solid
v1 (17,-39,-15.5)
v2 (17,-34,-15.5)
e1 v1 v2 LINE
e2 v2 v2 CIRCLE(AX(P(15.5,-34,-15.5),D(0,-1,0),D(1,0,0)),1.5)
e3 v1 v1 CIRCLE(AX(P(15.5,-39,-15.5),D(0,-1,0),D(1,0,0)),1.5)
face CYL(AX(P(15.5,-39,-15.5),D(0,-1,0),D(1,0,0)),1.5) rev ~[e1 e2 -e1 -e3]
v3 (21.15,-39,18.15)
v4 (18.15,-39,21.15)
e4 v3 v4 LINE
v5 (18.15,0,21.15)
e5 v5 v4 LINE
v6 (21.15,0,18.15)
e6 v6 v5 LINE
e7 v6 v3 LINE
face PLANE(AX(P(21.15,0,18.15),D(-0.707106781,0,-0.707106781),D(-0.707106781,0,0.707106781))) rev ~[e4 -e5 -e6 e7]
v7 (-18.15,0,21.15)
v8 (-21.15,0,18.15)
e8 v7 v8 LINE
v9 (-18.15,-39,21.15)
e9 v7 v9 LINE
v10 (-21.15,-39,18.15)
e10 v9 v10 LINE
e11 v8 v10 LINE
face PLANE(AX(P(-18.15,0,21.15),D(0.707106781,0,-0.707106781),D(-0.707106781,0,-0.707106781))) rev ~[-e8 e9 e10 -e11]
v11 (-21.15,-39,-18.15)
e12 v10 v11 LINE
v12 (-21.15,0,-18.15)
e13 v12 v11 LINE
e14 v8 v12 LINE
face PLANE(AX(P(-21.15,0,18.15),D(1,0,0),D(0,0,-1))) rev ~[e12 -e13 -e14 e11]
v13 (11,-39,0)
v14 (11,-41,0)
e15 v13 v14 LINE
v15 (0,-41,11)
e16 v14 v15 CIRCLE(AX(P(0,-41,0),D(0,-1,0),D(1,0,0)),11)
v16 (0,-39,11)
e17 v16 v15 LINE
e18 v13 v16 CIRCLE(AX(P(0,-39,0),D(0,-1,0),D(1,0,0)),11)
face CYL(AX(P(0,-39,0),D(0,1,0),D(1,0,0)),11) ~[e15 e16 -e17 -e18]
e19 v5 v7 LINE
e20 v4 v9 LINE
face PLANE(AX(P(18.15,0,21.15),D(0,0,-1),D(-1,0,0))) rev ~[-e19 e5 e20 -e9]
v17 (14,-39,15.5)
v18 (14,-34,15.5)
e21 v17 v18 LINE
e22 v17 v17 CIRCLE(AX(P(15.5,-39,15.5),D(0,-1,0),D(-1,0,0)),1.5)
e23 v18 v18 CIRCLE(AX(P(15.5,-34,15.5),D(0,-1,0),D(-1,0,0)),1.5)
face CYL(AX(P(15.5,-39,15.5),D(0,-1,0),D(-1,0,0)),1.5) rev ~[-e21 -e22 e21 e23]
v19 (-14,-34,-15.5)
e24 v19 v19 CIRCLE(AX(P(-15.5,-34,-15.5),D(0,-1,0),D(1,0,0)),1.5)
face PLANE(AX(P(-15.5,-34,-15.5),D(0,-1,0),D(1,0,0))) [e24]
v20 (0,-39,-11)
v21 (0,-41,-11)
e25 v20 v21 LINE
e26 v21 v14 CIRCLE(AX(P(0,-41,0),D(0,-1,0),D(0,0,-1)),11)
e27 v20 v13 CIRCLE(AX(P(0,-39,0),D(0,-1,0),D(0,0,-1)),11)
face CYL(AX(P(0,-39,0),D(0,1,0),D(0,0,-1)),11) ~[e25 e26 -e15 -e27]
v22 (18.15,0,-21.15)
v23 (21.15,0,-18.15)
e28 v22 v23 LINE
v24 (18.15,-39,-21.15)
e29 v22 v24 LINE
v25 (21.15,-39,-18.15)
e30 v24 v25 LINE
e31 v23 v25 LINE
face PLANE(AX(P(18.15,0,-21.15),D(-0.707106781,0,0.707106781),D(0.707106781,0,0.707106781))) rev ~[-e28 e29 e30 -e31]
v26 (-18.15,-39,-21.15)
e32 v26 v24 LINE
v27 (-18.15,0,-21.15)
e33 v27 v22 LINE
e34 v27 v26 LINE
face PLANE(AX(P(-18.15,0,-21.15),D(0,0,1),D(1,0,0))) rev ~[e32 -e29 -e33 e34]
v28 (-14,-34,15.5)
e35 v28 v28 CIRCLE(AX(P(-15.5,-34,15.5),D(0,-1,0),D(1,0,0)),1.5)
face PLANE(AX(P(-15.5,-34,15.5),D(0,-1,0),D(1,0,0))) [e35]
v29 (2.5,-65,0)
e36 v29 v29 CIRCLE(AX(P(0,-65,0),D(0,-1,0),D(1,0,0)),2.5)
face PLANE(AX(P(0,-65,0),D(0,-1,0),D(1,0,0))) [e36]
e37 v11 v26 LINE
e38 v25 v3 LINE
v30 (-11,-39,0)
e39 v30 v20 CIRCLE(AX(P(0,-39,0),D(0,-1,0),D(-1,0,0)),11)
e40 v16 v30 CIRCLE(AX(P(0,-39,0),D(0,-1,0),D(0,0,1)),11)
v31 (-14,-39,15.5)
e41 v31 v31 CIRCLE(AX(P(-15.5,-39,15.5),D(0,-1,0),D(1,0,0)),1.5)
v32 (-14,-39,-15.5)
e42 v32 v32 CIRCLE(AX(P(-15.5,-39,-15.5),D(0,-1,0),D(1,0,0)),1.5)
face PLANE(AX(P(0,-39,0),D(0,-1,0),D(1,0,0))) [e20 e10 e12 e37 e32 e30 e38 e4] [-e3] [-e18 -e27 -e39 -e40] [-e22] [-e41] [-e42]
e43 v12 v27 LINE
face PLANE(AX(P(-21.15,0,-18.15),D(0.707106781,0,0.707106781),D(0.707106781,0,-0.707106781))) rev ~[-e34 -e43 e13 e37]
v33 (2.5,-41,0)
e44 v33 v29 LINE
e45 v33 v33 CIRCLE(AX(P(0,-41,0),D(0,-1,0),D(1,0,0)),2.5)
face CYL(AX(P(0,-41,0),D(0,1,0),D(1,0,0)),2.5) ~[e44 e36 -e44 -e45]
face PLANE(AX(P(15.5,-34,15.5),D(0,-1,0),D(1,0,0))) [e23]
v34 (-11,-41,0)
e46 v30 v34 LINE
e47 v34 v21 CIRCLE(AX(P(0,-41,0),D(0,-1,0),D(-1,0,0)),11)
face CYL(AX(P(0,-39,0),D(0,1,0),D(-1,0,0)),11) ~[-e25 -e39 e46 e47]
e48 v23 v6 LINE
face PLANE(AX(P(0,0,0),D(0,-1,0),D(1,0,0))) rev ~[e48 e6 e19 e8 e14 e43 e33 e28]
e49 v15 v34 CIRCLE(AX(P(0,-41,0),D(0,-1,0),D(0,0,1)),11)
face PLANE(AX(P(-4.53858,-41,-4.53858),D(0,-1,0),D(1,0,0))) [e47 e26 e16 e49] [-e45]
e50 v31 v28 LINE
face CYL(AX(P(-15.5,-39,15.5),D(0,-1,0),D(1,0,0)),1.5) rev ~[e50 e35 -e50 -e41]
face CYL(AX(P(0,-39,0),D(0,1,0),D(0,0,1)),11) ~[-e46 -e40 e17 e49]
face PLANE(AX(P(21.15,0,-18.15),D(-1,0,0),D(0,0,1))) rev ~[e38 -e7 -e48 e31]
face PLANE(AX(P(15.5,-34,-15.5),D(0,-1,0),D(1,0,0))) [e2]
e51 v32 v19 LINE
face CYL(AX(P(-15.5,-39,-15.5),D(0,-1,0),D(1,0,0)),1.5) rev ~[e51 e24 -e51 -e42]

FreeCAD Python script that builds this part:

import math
import FreeCAD as App
import Part
import Sketcher

V = App.Vector

doc = App.newDocument("Part")
body = doc.addObject("PartDesign::Body", "Body")

# Sketch on XZ plane
sketch1 = body.newObject("Sketcher::SketchObject", "Sketch")
sketch1.AttachmentSupport = (doc.getObject("XZ_Plane"), [""])
sketch1.MapMode = "FlatFace"
sketch1.addGeometry([
    Part.LineSegment(V(21.1, 18.1, 0), V(18.1, 21.1, 0)),  # 0
    Part.LineSegment(V(18.1, 21.1, 0), V(-18.1, 21.1, 0)),  # 1
    Part.LineSegment(V(-18.1, 21.1, 0), V(-21.1, 18.1, 0)),  # 2
    Part.LineSegment(V(-21.1, 18.1, 0), V(-21.1, -18.1, 0)),  # 3
    Part.LineSegment(V(-21.1, -18.1, 0), V(-18.1, -21.1, 0)),  # 4
    Part.LineSegment(V(-18.1, -21.1, 0), V(18.1, -21.1, 0)),  # 5
    Part.LineSegment(V(18.1, -21.1, 0), V(21.1, -18.1, 0)),  # 6
    Part.LineSegment(V(21.1, -18.1, 0), V(21.1, 18.1, 0)),  # 7
], False)
sketch1.addConstraint([
    Sketcher.Constraint("Coincident", 0, 2, 1, 1),
    Sketcher.Constraint("Coincident", 1, 2, 2, 1),
    Sketcher.Constraint("Coincident", 2, 2, 3, 1),
    Sketcher.Constraint("Coincident", 3, 2, 4, 1),
    Sketcher.Constraint("Coincident", 4, 2, 5, 1),
    Sketcher.Constraint("Coincident", 5, 2, 6, 1),
    Sketcher.Constraint("Coincident", 6, 2, 7, 1),
    Sketcher.Constraint("Coincident", 7, 2, 0, 1),
    Sketcher.Constraint("Horizontal", 1),
    Sketcher.Constraint("Vertical", 3),
    Sketcher.Constraint("Horizontal", 5),
    Sketcher.Constraint("Vertical", 7),
    Sketcher.Constraint("Symmetric", 0, 2, 4, 2, -1, 1),
    Sketcher.Constraint("Symmetric", 2, 2, 6, 2, -1, 1),
    Sketcher.Constraint("Perpendicular", 0, 2),
    Sketcher.Constraint("Perpendicular", 2, 4),
    Sketcher.Constraint("Perpendicular", 4, 6),
    Sketcher.Constraint("Horizontal", 3, 2, 6, 2),
    Sketcher.Constraint("Vertical", 1, 2, 4, 2),
    Sketcher.Constraint("Equal", 5, 3),
    Sketcher.Constraint("DistanceX", 1, 2, 1, 1, 36.3),
    Sketcher.Constraint("DistanceX", 2, 2, 1, 2, 3.0),
])
pad1 = body.newObject("PartDesign::Pad", "Pad")
pad1.Profile = sketch1
pad1.Length = 39

# Sketch on XZ plane
sketch2 = body.newObject("Sketcher::SketchObject", "Sketch001")
sketch2.AttachmentSupport = (doc.getObject("XZ_Plane"), [""])
sketch2.MapMode = "FlatFace"
sketch2.AttachmentOffset = App.Placement(V(0, 0, 39), App.Rotation())
sketch2.addGeometry([
    Part.ArcOfCircle(Part.Circle(V(0, 0, 0), V(0, 0, 1), 11), math.radians(180), math.radians(270)),
    Part.ArcOfCircle(Part.Circle(V(0, 0, 0), V(0, 0, 1), 11), math.radians(-90), math.radians(0)),
    Part.ArcOfCircle(Part.Circle(V(0, 0, 0), V(0, 0, 1), 11), math.radians(0), math.radians(90)),
    Part.ArcOfCircle(Part.Circle(V(0, 0, 0), V(0, 0, 1), 11), math.radians(90), math.radians(180)),
], False)
sketch2.addConstraint([
    Sketcher.Constraint("Tangent", 0, 2, 1, 1),
    Sketcher.Constraint("Tangent", 1, 2, 2, 1),
    Sketcher.Constraint("Tangent", 2, 2, 3, 1),
    Sketcher.Constraint("Tangent", 3, 2, 0, 1),
    Sketcher.Constraint("Coincident", 0, 3, -1, 1),
    Sketcher.Constraint("Equal", 0, 1),
    Sketcher.Constraint("PointOnObject", 0, 2, -2),
    Sketcher.Constraint("PointOnObject", 1, 2, -1),
    Sketcher.Constraint("PointOnObject", 2, 2, -2),
    Sketcher.Constraint("PointOnObject", 3, 2, -1),
    Sketcher.Constraint("Radius", 0, 11.0),
])
pad2 = body.newObject("PartDesign::Pad", "Pad001")
pad2.Profile = sketch2
pad2.Length = 2

# Sketch on XZ plane
sketch3 = body.newObject("Sketcher::SketchObject", "Sketch002")
sketch3.AttachmentSupport = (doc.getObject("XZ_Plane"), [""])
sketch3.MapMode = "FlatFace"
sketch3.AttachmentOffset = App.Placement(V(0, 0, 41), App.Rotation())
sketch3.addGeometry(Part.Circle(V(0, 0, 0), V(0, 0, 1), 2.5), False)
sketch3.addConstraint([
    Sketcher.Constraint("Coincident", 0, 3, -1, 1),
    Sketcher.Constraint("Diameter", 0, 5.0),
])
pad3 = body.newObject("PartDesign::Pad", "Pad002")
pad3.Profile = sketch3
pad3.Length = 24

# Sketch on XZ plane
sketch4 = body.newObject("Sketcher::SketchObject", "Sketch003")
sketch4.AttachmentSupport = (doc.getObject("XZ_Plane"), [""])
sketch4.MapMode = "FlatFace"
sketch4.AttachmentOffset = App.Placement(V(0, 0, 39), App.Rotation())
sketch4.addGeometry([
    Part.Circle(V(-15.5, 15.5, 0), V(0, 0, 1), 1.5),
    Part.Circle(V(15.5, 15.5, 0), V(0, 0, 1), 1.5),
    Part.Circle(V(15.5, -15.5, 0), V(0, 0, 1), 1.5),
    Part.Circle(V(-15.5, -15.5, 0), V(0, 0, 1), 1.5),
], False)
sketch4.addConstraint([
    Sketcher.Constraint("Equal", 0, 1),
    Sketcher.Constraint("Equal", 1, 2),
    Sketcher.Constraint("Equal", 2, 3),
    Sketcher.Constraint("Symmetric", 0, 3, 2, 3, -1, 1),
    Sketcher.Constraint("Symmetric", 1, 3, 3, 3, -1, 1),
    Sketcher.Constraint("Symmetric", 0, 3, 1, 3, -2),
    Sketcher.Constraint("Diameter", 0, 3.0),
    Sketcher.Constraint("DistanceX", 0, 3, 1, 3, 31.0),
    Sketcher.Constraint("DistanceY", 2, 3, 1, 3, 31.0),
])
pocket1 = body.newObject("PartDesign::Pocket", "Pocket")
pocket1.Profile = sketch4
pocket1.Length = 5

doc.recompute()
